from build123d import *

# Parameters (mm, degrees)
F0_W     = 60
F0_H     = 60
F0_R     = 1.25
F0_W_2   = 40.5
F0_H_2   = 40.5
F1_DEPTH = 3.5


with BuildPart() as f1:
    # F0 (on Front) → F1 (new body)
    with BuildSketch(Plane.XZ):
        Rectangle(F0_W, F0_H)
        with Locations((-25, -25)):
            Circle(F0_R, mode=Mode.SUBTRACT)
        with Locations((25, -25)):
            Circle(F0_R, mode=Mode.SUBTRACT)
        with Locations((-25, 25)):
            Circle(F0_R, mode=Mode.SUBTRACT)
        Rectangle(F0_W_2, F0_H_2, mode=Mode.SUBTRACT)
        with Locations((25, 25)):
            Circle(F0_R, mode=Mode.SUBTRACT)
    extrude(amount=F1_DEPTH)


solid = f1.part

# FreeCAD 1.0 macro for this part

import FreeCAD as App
import Part
import Sketcher

V = App.Vector
Q = App.Units.Quantity

doc = App.newDocument("Part")
body = doc.addObject("PartDesign::Body", "Body")

# Sketch on XZ plane
sketch1 = doc.addObject("Sketcher::SketchObject", "Sketch")
body.addObject(sketch1)
sketch1.AttachmentSupport = (doc.XZ_Plane, [""])
sketch1.MapMode = "FlatFace"
sketch1.addGeometry(Part.LineSegment(V(-30, 30, 0), V(-30, -30, 0)), False)
sketch1.addGeometry(Part.LineSegment(V(-30, -30, 0), V(30, -30, 0)), False)
sketch1.addGeometry(Part.LineSegment(V(30, -30, 0), V(30, 30, 0)), False)
sketch1.addGeometry(Part.LineSegment(V(30, 30, 0), V(-30, 30, 0)), False)
sketch1.addGeometry(Part.Circle(V(-25, -25, 0), V(0, 0, 1), 1.2), False)
sketch1.addGeometry(Part.Circle(V(25, -25, 0), V(0, 0, 1), 1.2), False)
sketch1.addGeometry(Part.Circle(V(-25, 25, 0), V(0, 0, 1), 1.2), False)
sketch1.addGeometry(Part.LineSegment(V(20.2, -20.2, 0), V(-20.2, -20.2, 0)), False)
sketch1.addGeometry(Part.LineSegment(V(-20.2, -20.2, 0), V(-20.2, 20.2, 0)), False)
sketch1.addGeometry(Part.LineSegment(V(-20.2, 20.2, 0), V(20.2, 20.2, 0)), False)
sketch1.addGeometry(Part.LineSegment(V(20.2, 20.2, 0), V(20.2, -20.2, 0)), False)
sketch1.addGeometry(Part.Circle(V(25, 25, 0), V(0, 0, 1), 1.2), False)
sketch1.addConstraint(Sketcher.Constraint("Coincident", 0, 2, 1, 1))
sketch1.addConstraint(Sketcher.Constraint("Coincident", 1, 2, 2, 1))
sketch1.addConstraint(Sketcher.Constraint("Coincident", 2, 2, 3, 1))
sketch1.addConstraint(Sketcher.Constraint("Coincident", 3, 2, 0, 1))
sketch1.addConstraint(Sketcher.Constraint("Coincident", 7, 2, 8, 1))
sketch1.addConstraint(Sketcher.Constraint("Coincident", 8, 2, 9, 1))
sketch1.addConstraint(Sketcher.Constraint("Coincident", 9, 2, 10, 1))
sketch1.addConstraint(Sketcher.Constraint("Coincident", 10, 2, 7, 1))
sketch1.addConstraint(Sketcher.Constraint("Vertical", 0))
sketch1.addConstraint(Sketcher.Constraint("Horizontal", 1))
sketch1.addConstraint(Sketcher.Constraint("Vertical", 2))
sketch1.addConstraint(Sketcher.Constraint("Horizontal", 3))
sketch1.addConstraint(Sketcher.Constraint("Horizontal", 7))
sketch1.addConstraint(Sketcher.Constraint("Vertical", 8))
sketch1.addConstraint(Sketcher.Constraint("Horizontal", 9))
sketch1.addConstraint(Sketcher.Constraint("Vertical", 10))
sketch1.addConstraint(Sketcher.Constraint("Equal", 4, 5))
sketch1.addConstraint(Sketcher.Constraint("Equal", 5, 6))
sketch1.addConstraint(Sketcher.Constraint("Equal", 6, 11))
sketch1.addConstraint(Sketcher.Constraint("Symmetric", 5, 3, 6, 3, -1, 1))
sketch1.addConstraint(Sketcher.Constraint("Symmetric", 4, 3, 11, 3, -1, 1))
sketch1.addConstraint(Sketcher.Constraint("Symmetric", 0, 2, 2, 2, -1, 1))
sketch1.addConstraint(Sketcher.Constraint("Symmetric", 7, 2, 9, 2, -1, 1))
sketch1.addConstraint(Sketcher.Constraint("Symmetric", 4, 3, 5, 3, -2))
sketch1.addConstraint(Sketcher.Constraint("Equal", 3, 0))
sketch1.addConstraint(Sketcher.Constraint("Equal", 9, 8))
sketch1.addConstraint(Sketcher.Constraint("Diameter", 4, Q("2.5 mm")))
sketch1.addConstraint(Sketcher.Constraint("DistanceX", 1, 1, 1, 2, Q("60 mm")))
sketch1.addConstraint(Sketcher.Constraint("DistanceX", 7, 2, 7, 1, Q("40.5 mm")))
sketch1.addConstraint(Sketcher.Constraint("DistanceX", 4, 3, -1, 1, Q("25 mm")))
sketch1.addConstraint(Sketcher.Constraint("DistanceY", 4, 3, -1, 1, Q("25 mm")))
pad1 = doc.addObject("PartDesign::Pad", "Pad")
body.addObject(pad1)
pad1.Profile = sketch1
pad1.Length = 3.5

doc.recompute()
